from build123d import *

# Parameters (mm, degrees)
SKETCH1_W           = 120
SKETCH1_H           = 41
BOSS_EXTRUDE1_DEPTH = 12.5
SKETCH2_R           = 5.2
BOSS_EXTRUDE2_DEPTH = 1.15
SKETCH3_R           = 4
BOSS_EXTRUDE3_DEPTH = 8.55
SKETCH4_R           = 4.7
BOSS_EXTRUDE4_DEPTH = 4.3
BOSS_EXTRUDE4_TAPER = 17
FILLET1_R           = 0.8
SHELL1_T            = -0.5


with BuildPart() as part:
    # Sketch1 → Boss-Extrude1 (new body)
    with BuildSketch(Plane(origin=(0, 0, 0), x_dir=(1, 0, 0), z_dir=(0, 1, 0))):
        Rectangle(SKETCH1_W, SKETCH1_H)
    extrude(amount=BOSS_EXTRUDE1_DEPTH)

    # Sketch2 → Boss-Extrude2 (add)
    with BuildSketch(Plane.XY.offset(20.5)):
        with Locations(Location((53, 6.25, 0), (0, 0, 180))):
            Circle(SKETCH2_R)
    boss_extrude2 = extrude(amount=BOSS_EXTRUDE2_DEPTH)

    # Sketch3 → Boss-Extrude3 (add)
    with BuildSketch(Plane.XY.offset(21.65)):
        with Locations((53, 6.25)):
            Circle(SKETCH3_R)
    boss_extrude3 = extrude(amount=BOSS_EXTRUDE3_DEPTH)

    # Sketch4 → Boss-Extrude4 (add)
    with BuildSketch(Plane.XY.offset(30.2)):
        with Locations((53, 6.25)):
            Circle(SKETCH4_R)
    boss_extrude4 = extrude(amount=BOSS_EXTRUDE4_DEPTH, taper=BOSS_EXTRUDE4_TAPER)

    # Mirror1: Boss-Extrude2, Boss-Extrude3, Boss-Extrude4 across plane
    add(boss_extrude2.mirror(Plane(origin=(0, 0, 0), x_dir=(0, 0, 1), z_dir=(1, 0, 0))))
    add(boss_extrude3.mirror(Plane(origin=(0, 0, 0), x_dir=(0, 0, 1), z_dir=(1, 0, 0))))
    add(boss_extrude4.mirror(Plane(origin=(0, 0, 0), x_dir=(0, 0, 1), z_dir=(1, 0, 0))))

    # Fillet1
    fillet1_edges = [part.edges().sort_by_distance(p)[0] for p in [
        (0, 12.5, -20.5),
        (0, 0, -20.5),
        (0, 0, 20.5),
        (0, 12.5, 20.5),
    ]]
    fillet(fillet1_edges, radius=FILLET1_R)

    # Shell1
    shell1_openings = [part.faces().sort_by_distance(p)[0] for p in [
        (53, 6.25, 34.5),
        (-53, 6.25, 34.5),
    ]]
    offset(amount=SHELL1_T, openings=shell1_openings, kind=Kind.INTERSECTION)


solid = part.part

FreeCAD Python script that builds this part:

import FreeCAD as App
import Part
import Sketcher

V = App.Vector


def edges_at(feature, points):
    """Names of the edges that pass closest to the given points."""
    edges = feature.Shape.Edges
    near = lambda p: min(range(len(edges)), key=lambda i: edges[i].distToShape(Part.Vertex(*p))[0])
    return sorted({f"Edge{near(p) + 1}" for p in points})


def faces_at(feature, points):
    """Names of the faces that lie closest to the given points."""
    faces = feature.Shape.Faces
    near = lambda p: min(range(len(faces)), key=lambda i: faces[i].distToShape(Part.Vertex(*p))[0])
    return sorted({f"Face{near(p) + 1}" for p in points})

doc = App.newDocument("Part")
body = doc.addObject("PartDesign::Body", "Body")

sketch1 = doc.addObject("Sketcher::SketchObject", "Sketch")
body.addObject(sketch1)
sketch1.AttachmentSupport = (doc.XZ_Plane, [""])
sketch1.MapMode = "FlatFace"
sketch1.addGeometry([
    Part.LineSegment(V(-60, -20, 0), V(-60, 20, 0)),
    Part.LineSegment(V(-60, 20, 0), V(60, 20, 0)),
    Part.LineSegment(V(60, 20, 0), V(60, -20, 0)),
    Part.LineSegment(V(60, -20, 0), V(-60, -20, 0)),
], False)
sketch1.addConstraint([
    Sketcher.Constraint("Coincident", 0, 2, 1, 1),
    Sketcher.Constraint("Coincident", 1, 2, 2, 1),
    Sketcher.Constraint("Coincident", 2, 2, 3, 1),
    Sketcher.Constraint("Coincident", 3, 2, 0, 1),
    Sketcher.Constraint("Vertical", 0),
    Sketcher.Constraint("Horizontal", 1),
    Sketcher.Constraint("Vertical", 2),
    Sketcher.Constraint("Horizontal", 3),
    Sketcher.Constraint("Symmetric", 0, 2, 2, 2, -1, 1),
    Sketcher.Constraint("DistanceX", 1, 1, 1, 2, 120.0),
    Sketcher.Constraint("DistanceY", 0, 1, 0, 2, 41.0),
])
pad1 = doc.addObject("PartDesign::Pad", "Pad")
body.addObject(pad1)
pad1.Profile = sketch1
pad1.Length = 12.5
pad1.Reversed = True

sketch2 = doc.addObject("Sketcher::SketchObject", "Sketch001")
body.addObject(sketch2)
sketch2.AttachmentSupport = (doc.XY_Plane, [""])
sketch2.MapMode = "FlatFace"
sketch2.AttachmentOffset = App.Placement(V(0, 0, 20.5), App.Rotation())
sketch2.addGeometry(Part.Circle(V(53, 6, 0), V(0, 0, 1), 5), False)
sketch2.addConstraint([
    Sketcher.Constraint("Diameter", 0, 10.4),
    Sketcher.Constraint("DistanceX", -1, 1, 0, 3, 53.0),
    Sketcher.Constraint("DistanceY", -1, 1, 0, 3, 6.25),
])
pad2 = doc.addObject("PartDesign::Pad", "Pad001")
body.addObject(pad2)
pad2.Profile = sketch2
pad2.Length = 1.15

sketch3 = doc.addObject("Sketcher::SketchObject", "Sketch002")
body.addObject(sketch3)
sketch3.AttachmentSupport = (doc.XY_Plane, [""])
sketch3.MapMode = "FlatFace"
sketch3.AttachmentOffset = App.Placement(V(0, 0, 21.65), App.Rotation())
sketch3.addGeometry(Part.Circle(V(53, 6.2, 0), V(0, 0, 1), 4), False)
sketch3.addConstraint([
    Sketcher.Constraint("Diameter", 0, 8.0),
    Sketcher.Constraint("DistanceX", -1, 1, 0, 3, 53.0),
    Sketcher.Constraint("DistanceY", -1, 1, 0, 3, 6.25),
])
pad3 = doc.addObject("PartDesign::Pad", "Pad002")
body.addObject(pad3)
pad3.Profile = sketch3
pad3.Length = 8.55

sketch4 = doc.addObject("Sketcher::SketchObject", "Sketch003")
body.addObject(sketch4)
sketch4.AttachmentSupport = (doc.XY_Plane, [""])
sketch4.MapMode = "FlatFace"
sketch4.AttachmentOffset = App.Placement(V(0, 0, 30.2), App.Rotation())
sketch4.addGeometry(Part.Circle(V(53, 6.2, 0), V(0, 0, 1), 4.7), False)
sketch4.addConstraint([
    Sketcher.Constraint("Diameter", 0, 9.4),
    Sketcher.Constraint("DistanceX", -1, 1, 0, 3, 53.0),
    Sketcher.Constraint("DistanceY", -1, 1, 0, 3, 6.25),
])
pad4 = doc.addObject("PartDesign::Pad", "Pad003")
body.addObject(pad4)
pad4.Profile = sketch4
pad4.Length = 4.3
pad4.TaperAngle = -17
doc.recompute()

mirrored = doc.addObject("PartDesign::Mirrored", "Mirrored")
body.addObject(mirrored)
mirrored.Originals = [pad2, pad3, pad4]
mirrored.MirrorPlane = (doc.YZ_Plane, [""])
body.Tip = mirrored
doc.recompute()

fillet = doc.addObject("PartDesign::Fillet", "Fillet")
body.addObject(fillet)
fillet.Base = (mirrored, edges_at(mirrored, [
    (0, 12.5, -20.5),
    (0, 0, -20.5),
    (0, 0, 20.5),
    (0, 12.5, 20.5),
]))
fillet.Radius = 0.8
doc.recompute()

thickness = doc.addObject("PartDesign::Thickness", "Thickness")
body.addObject(thickness)
thickness.Base = (fillet, faces_at(fillet, [(53, 6.25, 34.5), (-53, 6.25, 34.5)]))
thickness.Value = 0.5
thickness.Reversed = True
thickness.Join = "Intersection"

doc.recompute()
